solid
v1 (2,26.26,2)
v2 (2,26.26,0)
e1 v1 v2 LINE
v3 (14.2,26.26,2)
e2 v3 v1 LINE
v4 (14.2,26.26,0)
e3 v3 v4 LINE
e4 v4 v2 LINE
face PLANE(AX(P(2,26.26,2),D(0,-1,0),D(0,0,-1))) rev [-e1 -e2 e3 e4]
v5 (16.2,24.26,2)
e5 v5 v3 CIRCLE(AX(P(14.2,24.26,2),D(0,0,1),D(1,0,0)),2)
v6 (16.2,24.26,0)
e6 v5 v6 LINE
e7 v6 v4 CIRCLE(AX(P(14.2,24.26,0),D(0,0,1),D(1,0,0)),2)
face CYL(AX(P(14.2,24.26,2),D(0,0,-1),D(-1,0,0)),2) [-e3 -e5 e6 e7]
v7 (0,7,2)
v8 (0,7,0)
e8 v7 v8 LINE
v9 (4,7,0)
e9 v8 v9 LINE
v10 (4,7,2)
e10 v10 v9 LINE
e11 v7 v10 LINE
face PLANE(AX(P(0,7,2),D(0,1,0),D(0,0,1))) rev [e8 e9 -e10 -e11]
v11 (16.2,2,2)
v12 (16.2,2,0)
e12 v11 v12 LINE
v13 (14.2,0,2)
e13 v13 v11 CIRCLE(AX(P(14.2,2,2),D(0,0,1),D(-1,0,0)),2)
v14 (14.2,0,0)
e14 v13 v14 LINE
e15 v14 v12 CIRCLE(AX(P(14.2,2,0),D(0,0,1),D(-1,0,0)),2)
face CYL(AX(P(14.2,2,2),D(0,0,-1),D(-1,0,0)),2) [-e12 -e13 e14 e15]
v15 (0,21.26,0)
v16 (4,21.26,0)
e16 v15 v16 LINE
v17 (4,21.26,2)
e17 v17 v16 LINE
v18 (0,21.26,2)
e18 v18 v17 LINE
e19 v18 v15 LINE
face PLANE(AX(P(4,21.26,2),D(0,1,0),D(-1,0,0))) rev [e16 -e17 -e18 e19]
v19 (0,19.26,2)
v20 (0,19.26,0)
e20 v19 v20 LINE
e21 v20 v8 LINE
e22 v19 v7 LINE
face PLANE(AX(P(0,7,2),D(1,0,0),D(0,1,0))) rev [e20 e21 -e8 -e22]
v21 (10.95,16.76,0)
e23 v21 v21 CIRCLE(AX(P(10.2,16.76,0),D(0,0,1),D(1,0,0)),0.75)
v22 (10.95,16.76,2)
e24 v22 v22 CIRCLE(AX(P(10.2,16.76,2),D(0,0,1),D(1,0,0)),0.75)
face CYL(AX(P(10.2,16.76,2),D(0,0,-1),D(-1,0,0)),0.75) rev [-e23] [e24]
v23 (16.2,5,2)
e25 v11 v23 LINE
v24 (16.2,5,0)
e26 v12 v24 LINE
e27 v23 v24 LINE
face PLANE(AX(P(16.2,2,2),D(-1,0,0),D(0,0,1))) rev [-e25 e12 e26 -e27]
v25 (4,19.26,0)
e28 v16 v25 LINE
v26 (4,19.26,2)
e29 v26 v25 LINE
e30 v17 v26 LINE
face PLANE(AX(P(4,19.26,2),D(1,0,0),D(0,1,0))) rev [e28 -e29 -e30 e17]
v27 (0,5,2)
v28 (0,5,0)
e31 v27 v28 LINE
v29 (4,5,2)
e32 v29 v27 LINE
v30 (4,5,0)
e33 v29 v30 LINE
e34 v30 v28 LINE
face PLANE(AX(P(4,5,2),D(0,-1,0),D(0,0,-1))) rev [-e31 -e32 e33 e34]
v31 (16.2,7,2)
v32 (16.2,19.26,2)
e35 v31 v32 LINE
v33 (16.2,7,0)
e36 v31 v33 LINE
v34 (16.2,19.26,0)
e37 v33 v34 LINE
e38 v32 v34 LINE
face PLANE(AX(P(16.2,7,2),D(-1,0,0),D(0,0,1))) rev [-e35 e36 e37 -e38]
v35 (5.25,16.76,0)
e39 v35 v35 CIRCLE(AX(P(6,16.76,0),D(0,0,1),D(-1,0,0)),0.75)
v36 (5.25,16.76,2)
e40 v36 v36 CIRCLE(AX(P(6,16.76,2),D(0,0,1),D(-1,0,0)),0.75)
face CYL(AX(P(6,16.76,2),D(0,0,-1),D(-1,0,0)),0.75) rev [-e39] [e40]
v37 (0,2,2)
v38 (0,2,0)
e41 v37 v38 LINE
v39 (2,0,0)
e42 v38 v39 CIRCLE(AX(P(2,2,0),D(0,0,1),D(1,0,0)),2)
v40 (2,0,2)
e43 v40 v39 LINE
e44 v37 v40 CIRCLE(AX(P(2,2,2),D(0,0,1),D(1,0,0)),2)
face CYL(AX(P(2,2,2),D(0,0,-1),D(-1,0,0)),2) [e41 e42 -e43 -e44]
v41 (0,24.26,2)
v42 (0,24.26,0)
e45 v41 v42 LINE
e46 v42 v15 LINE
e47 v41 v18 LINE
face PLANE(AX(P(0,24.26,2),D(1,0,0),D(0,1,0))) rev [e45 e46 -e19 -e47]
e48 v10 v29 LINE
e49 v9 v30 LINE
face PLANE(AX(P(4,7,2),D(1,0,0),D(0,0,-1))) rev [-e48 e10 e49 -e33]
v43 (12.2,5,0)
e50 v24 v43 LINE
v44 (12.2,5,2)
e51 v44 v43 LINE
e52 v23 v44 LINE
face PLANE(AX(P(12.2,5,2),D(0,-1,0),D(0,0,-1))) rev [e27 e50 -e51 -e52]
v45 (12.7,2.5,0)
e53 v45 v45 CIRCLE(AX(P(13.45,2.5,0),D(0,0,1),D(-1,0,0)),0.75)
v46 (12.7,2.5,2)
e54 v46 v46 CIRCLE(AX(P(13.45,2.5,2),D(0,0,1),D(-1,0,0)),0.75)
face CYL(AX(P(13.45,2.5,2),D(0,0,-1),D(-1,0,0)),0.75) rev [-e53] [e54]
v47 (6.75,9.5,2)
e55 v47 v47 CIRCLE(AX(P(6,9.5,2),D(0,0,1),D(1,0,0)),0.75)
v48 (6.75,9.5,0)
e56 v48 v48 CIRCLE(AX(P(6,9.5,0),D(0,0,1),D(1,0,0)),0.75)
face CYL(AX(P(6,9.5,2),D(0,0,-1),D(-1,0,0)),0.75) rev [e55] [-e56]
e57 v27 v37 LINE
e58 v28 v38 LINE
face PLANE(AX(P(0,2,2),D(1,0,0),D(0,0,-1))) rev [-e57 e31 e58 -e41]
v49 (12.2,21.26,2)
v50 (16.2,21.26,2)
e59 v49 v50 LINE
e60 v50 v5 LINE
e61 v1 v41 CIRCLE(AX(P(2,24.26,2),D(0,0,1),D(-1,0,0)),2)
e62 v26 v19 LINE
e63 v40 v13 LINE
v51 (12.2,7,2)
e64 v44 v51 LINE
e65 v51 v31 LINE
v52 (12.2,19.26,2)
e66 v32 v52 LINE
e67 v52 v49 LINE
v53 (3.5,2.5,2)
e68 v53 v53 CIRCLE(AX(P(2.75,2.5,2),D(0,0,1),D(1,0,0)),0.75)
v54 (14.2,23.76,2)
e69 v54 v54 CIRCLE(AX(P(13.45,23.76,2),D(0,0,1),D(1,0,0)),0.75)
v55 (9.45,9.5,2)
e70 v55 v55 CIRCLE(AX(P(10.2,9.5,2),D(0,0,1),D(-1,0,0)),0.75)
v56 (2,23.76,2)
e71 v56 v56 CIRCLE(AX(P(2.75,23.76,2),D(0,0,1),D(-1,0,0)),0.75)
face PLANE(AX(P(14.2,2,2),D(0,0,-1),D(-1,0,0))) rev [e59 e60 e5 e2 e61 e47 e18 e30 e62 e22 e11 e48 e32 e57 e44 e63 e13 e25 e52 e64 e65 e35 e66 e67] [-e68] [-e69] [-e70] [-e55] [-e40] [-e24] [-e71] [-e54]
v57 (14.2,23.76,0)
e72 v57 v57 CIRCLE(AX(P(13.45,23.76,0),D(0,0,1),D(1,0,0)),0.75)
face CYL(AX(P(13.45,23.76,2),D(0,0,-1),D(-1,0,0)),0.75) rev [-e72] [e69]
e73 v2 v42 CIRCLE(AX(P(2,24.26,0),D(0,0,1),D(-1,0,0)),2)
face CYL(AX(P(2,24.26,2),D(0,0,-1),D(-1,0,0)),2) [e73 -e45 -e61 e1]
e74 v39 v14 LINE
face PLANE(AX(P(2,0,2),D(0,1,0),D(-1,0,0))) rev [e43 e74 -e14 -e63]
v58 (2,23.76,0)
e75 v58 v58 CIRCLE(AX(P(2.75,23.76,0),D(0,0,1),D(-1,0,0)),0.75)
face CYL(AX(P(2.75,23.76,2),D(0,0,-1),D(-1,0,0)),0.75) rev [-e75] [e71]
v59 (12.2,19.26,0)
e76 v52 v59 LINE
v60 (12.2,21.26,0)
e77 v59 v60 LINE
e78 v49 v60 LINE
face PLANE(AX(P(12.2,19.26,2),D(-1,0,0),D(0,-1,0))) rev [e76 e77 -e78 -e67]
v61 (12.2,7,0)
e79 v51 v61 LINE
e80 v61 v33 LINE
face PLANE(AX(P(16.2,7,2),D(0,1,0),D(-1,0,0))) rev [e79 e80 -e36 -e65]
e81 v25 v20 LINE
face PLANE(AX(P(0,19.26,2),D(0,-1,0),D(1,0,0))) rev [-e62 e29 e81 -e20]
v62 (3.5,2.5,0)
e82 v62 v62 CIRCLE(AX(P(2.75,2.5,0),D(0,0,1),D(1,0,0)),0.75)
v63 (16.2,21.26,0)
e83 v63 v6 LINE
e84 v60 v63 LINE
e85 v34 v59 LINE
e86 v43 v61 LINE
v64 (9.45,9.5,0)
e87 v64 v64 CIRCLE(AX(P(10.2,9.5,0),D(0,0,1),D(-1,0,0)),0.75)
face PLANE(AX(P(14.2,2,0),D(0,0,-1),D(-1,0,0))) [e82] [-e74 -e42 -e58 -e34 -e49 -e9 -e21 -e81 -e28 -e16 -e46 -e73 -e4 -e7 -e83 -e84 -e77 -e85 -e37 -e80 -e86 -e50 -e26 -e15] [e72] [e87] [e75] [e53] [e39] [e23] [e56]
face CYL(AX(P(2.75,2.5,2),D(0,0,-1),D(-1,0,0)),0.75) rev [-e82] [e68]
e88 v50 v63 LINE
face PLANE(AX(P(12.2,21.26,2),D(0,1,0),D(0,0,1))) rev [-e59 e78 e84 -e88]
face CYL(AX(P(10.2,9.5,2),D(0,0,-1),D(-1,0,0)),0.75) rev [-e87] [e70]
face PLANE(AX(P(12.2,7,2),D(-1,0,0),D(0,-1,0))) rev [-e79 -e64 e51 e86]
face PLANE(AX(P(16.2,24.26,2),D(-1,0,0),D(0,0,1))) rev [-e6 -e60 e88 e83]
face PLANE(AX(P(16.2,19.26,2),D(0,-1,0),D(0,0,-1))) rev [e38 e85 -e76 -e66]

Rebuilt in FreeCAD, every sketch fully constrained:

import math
import FreeCAD as App
import Part
import Sketcher
from FreeCAD import Vector

doc = App.newDocument("Part")
body = doc.addObject("PartDesign::Body", "Body")

# Sketch on XY plane
sketch1 = doc.addObject("Sketcher::SketchObject", "Sketch")
body.addObject(sketch1)
sketch1.AttachmentSupport = (doc.XY_Plane, [""])
sketch1.MapMode = "FlatFace"
sketch1.addGeometry([
    Part.LineSegment(Vector(0, 19.3, 0), Vector(0, 7, 0)),  # 0
    Part.LineSegment(Vector(0, 7, 0), Vector(4, 7, 0)),  # 1
    Part.LineSegment(Vector(4, 7, 0), Vector(4, 5, 0)),  # 2
    Part.LineSegment(Vector(4, 5, 0), Vector(0, 5, 0)),  # 3
    Part.LineSegment(Vector(0, 5, 0), Vector(0, 2, 0)),  # 4
    Part.ArcOfCircle(Part.Circle(Vector(2, 2, 0), Vector(0, 0, 1), 2), math.radians(-180), math.radians(-90)),  # 5
    Part.LineSegment(Vector(2, 0, 0), Vector(14.2, 0, 0)),  # 6
    Part.ArcOfCircle(Part.Circle(Vector(14.2, 2, 0), Vector(0, 0, 1), 2), math.radians(-90), math.radians(0)),  # 7
    Part.LineSegment(Vector(16.2, 2, 0), Vector(16.2, 5, 0)),  # 8
    Part.LineSegment(Vector(16.2, 5, 0), Vector(12.2, 5, 0)),  # 9
    Part.LineSegment(Vector(12.2, 5, 0), Vector(12.2, 7, 0)),  # 10
    Part.LineSegment(Vector(12.2, 7, 0), Vector(16.2, 7, 0)),  # 11
    Part.LineSegment(Vector(16.2, 7, 0), Vector(16.2, 19.3, 0)),  # 12
    Part.LineSegment(Vector(16.2, 19.3, 0), Vector(12.2, 19.3, 0)),  # 13
    Part.LineSegment(Vector(12.2, 19.3, 0), Vector(12.2, 21.3, 0)),  # 14
    Part.LineSegment(Vector(12.2, 21.3, 0), Vector(16.2, 21.3, 0)),  # 15
    Part.LineSegment(Vector(16.2, 21.3, 0), Vector(16.2, 24.3, 0)),  # 16
    Part.ArcOfCircle(Part.Circle(Vector(14.2, 24.3, 0), Vector(0, 0, 1), 2), math.radians(0), math.radians(90)),  # 17
    Part.LineSegment(Vector(14.2, 26.3, 0), Vector(2, 26.3, 0)),  # 18
    Part.ArcOfCircle(Part.Circle(Vector(2, 24.3, 0), Vector(0, 0, 1), 2), math.radians(90), math.radians(180)),  # 19
    Part.LineSegment(Vector(0, 24.3, 0), Vector(0, 21.3, 0)),  # 20
    Part.LineSegment(Vector(0, 21.3, 0), Vector(4, 21.3, 0)),  # 21
    Part.LineSegment(Vector(4, 21.3, 0), Vector(4, 19.3, 0)),  # 22
    Part.LineSegment(Vector(4, 19.3, 0), Vector(0, 19.3, 0)),  # 23
    Part.Circle(Vector(13.4, 2.5, 0), Vector(0, 0, 1), 0.8),  # 24
    Part.Circle(Vector(10.2, 9.5, 0), Vector(0, 0, 1), 0.8),  # 25
    Part.Circle(Vector(2.8, 2.5, 0), Vector(0, 0, 1), 0.8),  # 26
    Part.Circle(Vector(6, 9.5, 0), Vector(0, 0, 1), 0.8),  # 27
    Part.Circle(Vector(10.2, 16.8, 0), Vector(0, 0, 1), 0.8),  # 28
    Part.Circle(Vector(13.4, 23.8, 0), Vector(0, 0, 1), 0.8),  # 29
    Part.Circle(Vector(6, 16.8, 0), Vector(0, 0, 1), 0.8),  # 30
    Part.Circle(Vector(2.8, 23.8, 0), Vector(0, 0, 1), 0.8),  # 31
], False)
sketch1.addConstraint([
    Sketcher.Constraint("Coincident", 0, 2, 1, 1),
    Sketcher.Constraint("Coincident", 1, 2, 2, 1),
    Sketcher.Constraint("Coincident", 2, 2, 3, 1),
    Sketcher.Constraint("Coincident", 3, 2, 4, 1),
    Sketcher.Constraint("Tangent", 4, 2, 5, 1),
    Sketcher.Constraint("Tangent", 5, 2, 6, 1),
    Sketcher.Constraint("Tangent", 6, 2, 7, 1),
    Sketcher.Constraint("Tangent", 7, 2, 8, 1),
    Sketcher.Constraint("Coincident", 8, 2, 9, 1),
    Sketcher.Constraint("Coincident", 9, 2, 10, 1),
    Sketcher.Constraint("Coincident", 10, 2, 11, 1),
    Sketcher.Constraint("Coincident", 11, 2, 12, 1),
    Sketcher.Constraint("Coincident", 12, 2, 13, 1),
    Sketcher.Constraint("Coincident", 13, 2, 14, 1),
    Sketcher.Constraint("Coincident", 14, 2, 15, 1),
    Sketcher.Constraint("Coincident", 15, 2, 16, 1),
    Sketcher.Constraint("Tangent", 16, 2, 17, 1),
    Sketcher.Constraint("Tangent", 17, 2, 18, 1),
    Sketcher.Constraint("Tangent", 18, 2, 19, 1),
    Sketcher.Constraint("Tangent", 19, 2, 20, 1),
    Sketcher.Constraint("Coincident", 20, 2, 21, 1),
    Sketcher.Constraint("Coincident", 21, 2, 22, 1),
    Sketcher.Constraint("Coincident", 22, 2, 23, 1),
    Sketcher.Constraint("Coincident", 23, 2, 0, 1),
    Sketcher.Constraint("Vertical", 0),
    Sketcher.Constraint("Horizontal", 1),
    Sketcher.Constraint("Vertical", 2),
    Sketcher.Constraint("Horizontal", 3),
    Sketcher.Constraint("Vertical", 4),
    Sketcher.Constraint("Horizontal", 6),
    Sketcher.Constraint("Vertical", 8),
    Sketcher.Constraint("Horizontal", 9),
    Sketcher.Constraint("Vertical", 10),
    Sketcher.Constraint("Horizontal", 11),
    Sketcher.Constraint("Vertical", 12),
    Sketcher.Constraint("Horizontal", 13),
    Sketcher.Constraint("Vertical", 14),
    Sketcher.Constraint("Horizontal", 15),
    Sketcher.Constraint("Vertical", 16),
    Sketcher.Constraint("Horizontal", 18),
    Sketcher.Constraint("Vertical", 20),
    Sketcher.Constraint("Horizontal", 21),
    Sketcher.Constraint("Vertical", 22),
    Sketcher.Constraint("Horizontal", 23),
    Sketcher.Constraint("Equal", 5, 7),
    Sketcher.Constraint("Equal", 7, 17),
    Sketcher.Constraint("Equal", 17, 19),
    Sketcher.Constraint("Equal", 24, 25),
    Sketcher.Constraint("Equal", 25, 26),
    Sketcher.Constraint("Equal", 26, 27),
    Sketcher.Constraint("Equal", 27, 28),
    Sketcher.Constraint("Equal", 28, 29),
    Sketcher.Constraint("Equal", 29, 30),
    Sketcher.Constraint("Equal", 30, 31),
    Sketcher.Constraint("PointOnObject", 0, 2, -2),
    Sketcher.Constraint("PointOnObject", 3, 2, -2),
    Sketcher.Constraint("PointOnObject", 5, 2, -1),
    Sketcher.Constraint("PointOnObject", 19, 2, -2),
    Sketcher.Constraint("Horizontal", 24, 3, 26, 3),
    Sketcher.Constraint("Horizontal", 25, 3, 27, 3),
    Sketcher.Constraint("Horizontal", 28, 3, 30, 3),
    Sketcher.Constraint("Horizontal", 29, 3, 31, 3),
    Sketcher.Constraint("Horizontal", 3, 2, 8, 2),
    Sketcher.Constraint("Horizontal", 1, 2, 10, 2),
    Sketcher.Constraint("Horizontal", 15, 2, 20, 2),
    Sketcher.Constraint("Horizontal", 13, 2, 22, 2),
    Sketcher.Constraint("Vertical", 7, 3, 17, 3),
    Sketcher.Constraint("Vertical", 25, 3, 28, 3),
    Sketcher.Constraint("Vertical", 24, 3, 29, 3),
    Sketcher.Constraint("Vertical", 27, 3, 30, 3),
    Sketcher.Constraint("Vertical", 26, 3, 31, 3),
    Sketcher.Constraint("Vertical", 8, 2, 11, 2),
    Sketcher.Constraint("Vertical", 10, 2, 13, 2),
    Sketcher.Constraint("Vertical", 2, 2, 21, 2),
    Sketcher.Constraint("Equal", 3, 9),
    Sketcher.Constraint("Equal", 10, 14),
    Sketcher.Constraint("Equal", 8, 16),
    Sketcher.Constraint("Radius", 5, 2.0),
    Sketcher.Constraint("Diameter", 24, 1.5),
    Sketcher.Constraint("DistanceX", 1, 1, 1, 2, 4.0),
    Sketcher.Constraint("DistanceY", 2, 2, 2, 1, 2.0),
    Sketcher.Constraint("DistanceY", 4, 2, 4, 1, 3.0),
    Sketcher.Constraint("DistanceX", 6, 1, 6, 2, 12.2),
    Sketcher.Constraint("DistanceX", -1, 1, 27, 3, 6.0),
    Sketcher.Constraint("DistanceY", 24, 3, 25, 3, 7.0),
    Sketcher.Constraint("DistanceX", 25, 3, 7, 3, 4.0),
    Sketcher.Constraint("DistanceY", 28, 3, 29, 3, 7.0),
    Sketcher.Constraint("DistanceY", 0, 2, 0, 1, 12.26),
    Sketcher.Constraint("DistanceY", -1, 1, 24, 3, 2.5),
    Sketcher.Constraint("DistanceX", 26, 3, 24, 3, 10.7),
    Sketcher.Constraint("DistanceY", 28, 3, 17, 3, 7.5),
    Sketcher.Constraint("DistanceX", -1, 1, 24, 3, 13.45),
])
pad1 = doc.addObject("PartDesign::Pad", "Pad")
body.addObject(pad1)
pad1.Profile = sketch1
pad1.Length = 2

doc.recompute()
